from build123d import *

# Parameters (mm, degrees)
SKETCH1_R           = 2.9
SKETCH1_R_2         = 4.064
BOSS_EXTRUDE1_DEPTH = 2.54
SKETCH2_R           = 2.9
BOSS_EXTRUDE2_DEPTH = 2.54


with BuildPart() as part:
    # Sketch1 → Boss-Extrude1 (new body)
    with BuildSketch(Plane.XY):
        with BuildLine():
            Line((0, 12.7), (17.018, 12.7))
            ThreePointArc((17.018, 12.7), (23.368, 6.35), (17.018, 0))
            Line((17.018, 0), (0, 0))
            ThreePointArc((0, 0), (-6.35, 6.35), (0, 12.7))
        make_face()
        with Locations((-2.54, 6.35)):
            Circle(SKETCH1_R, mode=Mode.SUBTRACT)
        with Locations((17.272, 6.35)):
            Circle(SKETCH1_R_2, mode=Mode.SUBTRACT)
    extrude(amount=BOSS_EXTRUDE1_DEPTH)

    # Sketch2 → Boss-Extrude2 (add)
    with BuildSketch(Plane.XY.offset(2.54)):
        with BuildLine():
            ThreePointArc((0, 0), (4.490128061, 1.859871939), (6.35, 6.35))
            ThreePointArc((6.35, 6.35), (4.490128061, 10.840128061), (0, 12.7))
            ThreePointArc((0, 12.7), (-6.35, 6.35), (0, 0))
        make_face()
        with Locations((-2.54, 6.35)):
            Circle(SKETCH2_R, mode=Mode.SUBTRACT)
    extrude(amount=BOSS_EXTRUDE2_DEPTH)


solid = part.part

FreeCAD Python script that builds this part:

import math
import FreeCAD as App
import Part
import Sketcher
from FreeCAD import Vector
Q = App.Units.Quantity

doc = App.newDocument("Part")
body = doc.addObject("PartDesign::Body", "Body")

sketch1 = body.newObject("Sketcher::SketchObject", "Sketch")
sketch1.AttachmentSupport = (doc.getObject("XY_Plane"), [""])
sketch1.MapMode = "FlatFace"
sketch1.addGeometry([
    Part.LineSegment(Vector(17, 12.7, 0), Vector(0, 12.7, 0)),
    Part.ArcOfCircle(Part.Circle(Vector(0, 6.3, 0), Vector(0, 0, 1), 6.3), math.radians(90), math.radians(270)),
    Part.LineSegment(Vector(0, 0, 0), Vector(17, 0, 0)),
    Part.ArcOfCircle(Part.Circle(Vector(17, 6.3, 0), Vector(0, 0, 1), 6.3), math.radians(-90), math.radians(90)),
    Part.Circle(Vector(17.3, 6.3, 0), Vector(0, 0, 1), 4.1),
    Part.Circle(Vector(-2.5, 6.3, 0), Vector(0, 0, 1), 2.9),
], False)
sketch1.addConstraint([
    Sketcher.Constraint("Tangent", 0, 2, 1, 1),
    Sketcher.Constraint("Tangent", 1, 2, 2, 1),
    Sketcher.Constraint("Tangent", 2, 2, 3, 1),
    Sketcher.Constraint("Tangent", 3, 2, 0, 1),
    Sketcher.Constraint("Horizontal", 0),
    Sketcher.Constraint("Horizontal", 2),
    Sketcher.Constraint("Coincident", 1, 2, -1, 1),
    Sketcher.Constraint("Horizontal", 3, 3, 4, 3),
    Sketcher.Constraint("Horizontal", 4, 3, 5, 3),
    Sketcher.Constraint("Diameter", 4, Q("0.32 in")),
    Sketcher.Constraint("Radius", 1, Q("0.25 in")),
    Sketcher.Constraint("DistanceX", 0, 2, 0, 1, Q("0.67 in")),
    Sketcher.Constraint("DistanceX", 5, 3, -1, 1, Q("0.1 in")),
    Sketcher.Constraint("Diameter", 5, Q("5.8 mm")),
    Sketcher.Constraint("DistanceX", -1, 1, 4, 3, Q("0.68 in")),
])
pad1 = body.newObject("PartDesign::Pad", "Pad")
pad1.Profile = sketch1
pad1.Length = Q("0.1 in")

sketch2 = body.newObject("Sketcher::SketchObject", "Sketch001")
sketch2.AttachmentSupport = (doc.getObject("XY_Plane"), [""])
sketch2.MapMode = "FlatFace"
sketch2.AttachmentOffset = App.Placement(Vector(0, 0, 0.1 * 25.4), App.Rotation())
sketch2.addGeometry([
    Part.ArcOfCircle(Part.Circle(Vector(0, 6.3, 0), Vector(0, 0, 1), 6.3), math.radians(-90), math.radians(0)),
    Part.ArcOfCircle(Part.Circle(Vector(0, 6.4, 0), Vector(0, 0, 1), 6.3), math.radians(0), math.radians(90)),
    Part.ArcOfCircle(Part.Circle(Vector(0, 6.3, 0), Vector(0, 0, 1), 6.3), math.radians(90), math.radians(270)),
    Part.Circle(Vector(-2.5, 6.3, 0), Vector(0, 0, 1), 2.9),
], False)
sketch2.addConstraint([
    Sketcher.Constraint("Tangent", 0, 2, 1, 1),
    Sketcher.Constraint("Tangent", 1, 2, 2, 1),
    Sketcher.Constraint("Tangent", 2, 2, 0, 1),
    Sketcher.Constraint("Coincident", 2, 2, -1, 1),
    Sketcher.Constraint("PointOnObject", 0, 3, -2),
    Sketcher.Constraint("PointOnObject", 1, 2, -2),
    Sketcher.Constraint("Horizontal", 2, 3, 3, 3),
    Sketcher.Constraint("Horizontal", 3, 3, 0, 2),
    Sketcher.Constraint("Radius", 0, Q("0.25 in")),
    Sketcher.Constraint("DistanceX", 3, 3, -1, 1, Q("0.1 in")),
    Sketcher.Constraint("Diameter", 3, Q("5.8 mm")),
])
pad2 = body.newObject("PartDesign::Pad", "Pad001")
pad2.Profile = sketch2
pad2.Length = Q("0.1 in")

doc.recompute()
